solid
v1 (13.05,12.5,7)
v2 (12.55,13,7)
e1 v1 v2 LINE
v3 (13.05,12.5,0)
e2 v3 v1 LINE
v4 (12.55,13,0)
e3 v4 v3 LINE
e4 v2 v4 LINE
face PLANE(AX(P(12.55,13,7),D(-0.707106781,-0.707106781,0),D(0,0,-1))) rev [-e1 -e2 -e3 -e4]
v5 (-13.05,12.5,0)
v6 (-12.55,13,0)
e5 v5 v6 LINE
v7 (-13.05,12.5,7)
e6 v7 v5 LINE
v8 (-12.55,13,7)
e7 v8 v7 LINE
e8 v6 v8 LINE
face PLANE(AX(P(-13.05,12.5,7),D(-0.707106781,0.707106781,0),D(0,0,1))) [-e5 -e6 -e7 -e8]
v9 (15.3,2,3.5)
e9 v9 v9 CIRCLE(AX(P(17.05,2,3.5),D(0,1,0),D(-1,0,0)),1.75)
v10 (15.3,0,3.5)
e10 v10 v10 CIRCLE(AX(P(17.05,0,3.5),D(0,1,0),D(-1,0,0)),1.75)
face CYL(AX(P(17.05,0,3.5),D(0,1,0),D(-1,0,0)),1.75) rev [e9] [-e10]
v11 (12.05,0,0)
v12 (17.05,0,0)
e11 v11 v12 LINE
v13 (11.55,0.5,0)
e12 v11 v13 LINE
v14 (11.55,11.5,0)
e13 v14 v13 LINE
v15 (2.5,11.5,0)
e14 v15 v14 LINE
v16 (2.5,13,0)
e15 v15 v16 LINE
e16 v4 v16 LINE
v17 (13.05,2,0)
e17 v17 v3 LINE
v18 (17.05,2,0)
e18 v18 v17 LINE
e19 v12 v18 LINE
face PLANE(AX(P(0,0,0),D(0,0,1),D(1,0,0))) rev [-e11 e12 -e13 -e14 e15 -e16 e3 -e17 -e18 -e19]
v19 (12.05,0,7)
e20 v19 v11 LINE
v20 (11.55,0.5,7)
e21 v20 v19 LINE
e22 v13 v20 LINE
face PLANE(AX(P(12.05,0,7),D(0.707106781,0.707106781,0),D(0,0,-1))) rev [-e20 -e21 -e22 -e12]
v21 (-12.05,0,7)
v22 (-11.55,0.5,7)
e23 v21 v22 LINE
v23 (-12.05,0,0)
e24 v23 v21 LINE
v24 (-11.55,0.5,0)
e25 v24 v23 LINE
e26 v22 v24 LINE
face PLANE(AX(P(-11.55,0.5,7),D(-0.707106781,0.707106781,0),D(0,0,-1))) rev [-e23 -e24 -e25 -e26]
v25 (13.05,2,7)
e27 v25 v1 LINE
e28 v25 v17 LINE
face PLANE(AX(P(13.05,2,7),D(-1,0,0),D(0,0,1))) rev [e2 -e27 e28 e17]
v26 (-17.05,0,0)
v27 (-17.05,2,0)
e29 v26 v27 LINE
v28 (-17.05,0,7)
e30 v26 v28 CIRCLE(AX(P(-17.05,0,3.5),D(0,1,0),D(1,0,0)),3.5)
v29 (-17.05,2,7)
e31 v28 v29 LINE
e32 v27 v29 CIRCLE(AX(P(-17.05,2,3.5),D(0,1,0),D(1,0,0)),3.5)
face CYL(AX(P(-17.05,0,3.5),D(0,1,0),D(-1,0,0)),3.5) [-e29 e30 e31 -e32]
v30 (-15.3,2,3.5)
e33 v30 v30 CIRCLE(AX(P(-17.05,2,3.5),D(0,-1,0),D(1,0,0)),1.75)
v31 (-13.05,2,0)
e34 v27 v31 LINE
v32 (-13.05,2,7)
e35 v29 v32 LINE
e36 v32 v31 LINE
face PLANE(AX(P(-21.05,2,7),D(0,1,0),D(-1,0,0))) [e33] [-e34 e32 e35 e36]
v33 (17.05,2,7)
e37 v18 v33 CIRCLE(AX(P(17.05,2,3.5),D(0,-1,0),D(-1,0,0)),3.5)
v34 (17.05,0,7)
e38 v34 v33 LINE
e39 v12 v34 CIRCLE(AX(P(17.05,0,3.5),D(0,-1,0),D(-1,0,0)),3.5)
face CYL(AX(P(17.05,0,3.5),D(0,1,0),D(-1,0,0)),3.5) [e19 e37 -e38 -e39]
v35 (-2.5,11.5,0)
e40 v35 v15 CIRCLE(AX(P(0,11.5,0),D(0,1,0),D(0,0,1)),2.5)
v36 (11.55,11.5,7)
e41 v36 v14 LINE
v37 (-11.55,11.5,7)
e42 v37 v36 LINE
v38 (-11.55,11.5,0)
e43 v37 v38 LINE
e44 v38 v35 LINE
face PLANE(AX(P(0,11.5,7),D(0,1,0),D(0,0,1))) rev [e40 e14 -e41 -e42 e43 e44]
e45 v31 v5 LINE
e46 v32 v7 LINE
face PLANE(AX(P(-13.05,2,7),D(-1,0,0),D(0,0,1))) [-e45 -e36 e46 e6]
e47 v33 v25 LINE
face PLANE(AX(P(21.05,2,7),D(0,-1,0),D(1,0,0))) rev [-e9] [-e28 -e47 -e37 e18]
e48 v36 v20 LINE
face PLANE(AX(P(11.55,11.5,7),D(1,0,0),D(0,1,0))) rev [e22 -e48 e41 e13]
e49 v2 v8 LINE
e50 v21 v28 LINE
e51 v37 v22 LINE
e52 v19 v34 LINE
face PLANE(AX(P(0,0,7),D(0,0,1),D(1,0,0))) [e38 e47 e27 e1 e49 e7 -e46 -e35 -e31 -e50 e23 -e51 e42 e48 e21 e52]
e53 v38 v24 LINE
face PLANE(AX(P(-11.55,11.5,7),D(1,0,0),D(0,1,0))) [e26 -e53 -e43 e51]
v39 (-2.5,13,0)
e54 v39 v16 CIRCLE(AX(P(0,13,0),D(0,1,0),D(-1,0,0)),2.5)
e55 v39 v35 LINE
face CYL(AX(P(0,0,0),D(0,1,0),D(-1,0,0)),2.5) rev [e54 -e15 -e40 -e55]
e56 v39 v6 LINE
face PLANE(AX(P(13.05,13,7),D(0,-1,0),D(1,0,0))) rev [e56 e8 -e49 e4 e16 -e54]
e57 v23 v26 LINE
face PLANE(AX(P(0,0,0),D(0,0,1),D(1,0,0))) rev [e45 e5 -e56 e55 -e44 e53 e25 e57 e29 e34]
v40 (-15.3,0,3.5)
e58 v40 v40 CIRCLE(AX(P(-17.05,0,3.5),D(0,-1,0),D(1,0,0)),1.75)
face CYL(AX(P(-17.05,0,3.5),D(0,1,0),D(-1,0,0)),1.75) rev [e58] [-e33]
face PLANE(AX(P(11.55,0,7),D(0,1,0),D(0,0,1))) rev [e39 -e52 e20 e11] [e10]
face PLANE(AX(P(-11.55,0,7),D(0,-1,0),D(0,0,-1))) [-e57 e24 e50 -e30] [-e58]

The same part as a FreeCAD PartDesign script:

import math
import FreeCAD as App
import Part
import Sketcher
Q = App.Units.Quantity


def edges_at(feature, points):
    """Names of the edges that pass closest to the given points."""
    edges = feature.Shape.Edges
    near = lambda p: min(range(len(edges)), key=lambda i: edges[i].distToShape(Part.Vertex(*p))[0])
    return sorted({f"Edge{near(p) + 1}" for p in points})

doc = App.newDocument("Part")
body = doc.addObject("PartDesign::Body", "Body")

# Sketch on XY plane
sketch1 = body.newObject("Sketcher::SketchObject", "Sketch")
sketch1.AttachmentSupport = (doc.getObject("XY_Plane"), [""])
sketch1.MapMode = "FlatFace"
sketch1.addGeometry([
    Part.LineSegment(App.Vector(0, 11.5, 0), App.Vector(11.6, 11.5, 0)),  # 0
    Part.LineSegment(App.Vector(11.6, 11.5, 0), App.Vector(11.6, 0, 0)),  # 1
    Part.LineSegment(App.Vector(11.6, 0, 0), App.Vector(21.1, 0, 0)),  # 2
    Part.LineSegment(App.Vector(21.1, 0, 0), App.Vector(21.1, 2, 0)),  # 3
    Part.LineSegment(App.Vector(21.1, 2, 0), App.Vector(13.1, 2, 0)),  # 4
    Part.LineSegment(App.Vector(13.1, 2, 0), App.Vector(13.1, 13, 0)),  # 5
    Part.LineSegment(App.Vector(13.1, 13, 0), App.Vector(0, 13, 0)),  # 6
    Part.LineSegment(App.Vector(0, 13, 0), App.Vector(0, 11.5, 0)),  # 7
], False)
sketch1.addConstraint([
    Sketcher.Constraint("Coincident", 0, 2, 1, 1),
    Sketcher.Constraint("Coincident", 1, 2, 2, 1),
    Sketcher.Constraint("Coincident", 2, 2, 3, 1),
    Sketcher.Constraint("Coincident", 3, 2, 4, 1),
    Sketcher.Constraint("Coincident", 4, 2, 5, 1),
    Sketcher.Constraint("Coincident", 5, 2, 6, 1),
    Sketcher.Constraint("Coincident", 6, 2, 7, 1),
    Sketcher.Constraint("Coincident", 7, 2, 0, 1),
    Sketcher.Constraint("Horizontal", 0),
    Sketcher.Constraint("Vertical", 1),
    Sketcher.Constraint("Horizontal", 2),
    Sketcher.Constraint("Vertical", 3),
    Sketcher.Constraint("Horizontal", 4),
    Sketcher.Constraint("Vertical", 5),
    Sketcher.Constraint("Horizontal", 6),
    Sketcher.Constraint("Vertical", 7),
    Sketcher.Constraint("PointOnObject", 1, 2, -1),
    Sketcher.Constraint("PointOnObject", 6, 2, -2),
    Sketcher.Constraint("DistanceX", 4, 2, 4, 1, Q("8 mm")),
    Sketcher.Constraint("DistanceY", 3, 1, 3, 2, Q("2 mm")),
    Sketcher.Constraint("DistanceY", 5, 1, 5, 2, Q("11 mm")),
    Sketcher.Constraint("DistanceX", 2, 1, 2, 2, Q("9.5 mm")),
    Sketcher.Constraint("DistanceY", 1, 2, 1, 1, Q("11.5 mm")),
    Sketcher.Constraint("DistanceX", 0, 1, 0, 2, Q("11.55 mm")),
])
pad1 = body.newObject("PartDesign::Pad", "Pad")
pad1.Profile = sketch1
pad1.Length = 7

# Sketch on XZ plane
sketch2 = body.newObject("Sketcher::SketchObject", "Sketch001")
sketch2.AttachmentSupport = (doc.getObject("XZ_Plane"), [""])
sketch2.MapMode = "FlatFace"
sketch2.AttachmentOffset = App.Placement(App.Vector(0, 0, -2), App.Rotation())
sketch2.addGeometry([
    Part.Circle(App.Vector(17.1, 3.5, 0), App.Vector(0, 0, 1), 1.8),  # 0
    Part.LineSegment(App.Vector(21.1, 0, 0), App.Vector(17.1, 0, 0)),  # 1
    Part.ArcOfCircle(Part.Circle(App.Vector(17.1, 3.5, 0), App.Vector(0, 0, 1), 3.5), math.radians(-90), math.radians(90)),  # 2
    Part.LineSegment(App.Vector(17.1, 7, 0), App.Vector(21.1, 7, 0)),  # 3
    Part.LineSegment(App.Vector(21.1, 7, 0), App.Vector(21.1, 0, 0)),  # 4
], False)
sketch2.addConstraint([
    Sketcher.Constraint("Tangent", 1, 2, 2, 1),
    Sketcher.Constraint("Tangent", 2, 2, 3, 1),
    Sketcher.Constraint("Coincident", 3, 2, 4, 1),
    Sketcher.Constraint("Coincident", 4, 2, 1, 1),
    Sketcher.Constraint("Horizontal", 1),
    Sketcher.Constraint("Horizontal", 3),
    Sketcher.Constraint("Vertical", 4),
    Sketcher.Constraint("Coincident", 2, 3, 0, 3),
    Sketcher.Constraint("PointOnObject", 1, 2, -1),
    Sketcher.Constraint("Diameter", 0, Q("3.5 mm")),
    Sketcher.Constraint("Radius", 2, Q("3.5 mm")),
    Sketcher.Constraint("DistanceX", 1, 2, 1, 1, Q("4 mm")),
    Sketcher.Constraint("DistanceX", -1, 1, 0, 3, Q("17.05 mm")),
])
pocket1 = body.newObject("PartDesign::Pocket", "Pocket")
pocket1.Profile = sketch2
pocket1.Type = "ThroughAll"
pocket1.Reversed = True
doc.recompute()

chamfer = body.newObject("PartDesign::Chamfer", "Chamfer")
chamfer.Base = (pocket1, edges_at(pocket1, [(11.55, 0, 3.5), (13.05, 13, 3.5)]))
chamfer.Size = 0.5
doc.recompute()

mirrored = body.newObject("PartDesign::Mirrored", "Mirrored")
mirrored.Originals = [pad1, pocket1]
mirrored.MirrorPlane = (doc.getObject("YZ_Plane"), [""])
body.Tip = mirrored
doc.recompute()

chamfer2 = body.newObject("PartDesign::Chamfer", "Chamfer001")
chamfer2.Base = (mirrored, edges_at(mirrored, [(-11.55, 0, 3.5), (-13.05, 13, 3.5)]))
chamfer2.Size = 0.5

# Sketch on XZ plane
sketch3 = body.newObject("Sketcher::SketchObject", "Sketch002")
sketch3.AttachmentSupport = (doc.getObject("XZ_Plane"), [""])
sketch3.MapMode = "FlatFace"
sketch3.AttachmentOffset = App.Placement(App.Vector(0, 0, -13), App.Rotation())
sketch3.addGeometry([
    Part.LineSegment(App.Vector(2.5, 0, 0), App.Vector(-2.5, 0, 0)),
    Part.ArcOfCircle(Part.Circle(App.Vector(0, 0, 0), App.Vector(0, 0, 1), 2.5), math.radians(0), math.radians(180)),
], False)
sketch3.addConstraint([
    Sketcher.Constraint("Coincident", 0, 1, 1, 1),
    Sketcher.Constraint("Coincident", 1, 2, 0, 2),
    Sketcher.Constraint("Horizontal", 0),
    Sketcher.Constraint("Coincident", 1, 3, -1, 1),
    Sketcher.Constraint("PointOnObject", 0, 1, -1),
    Sketcher.Constraint("Radius", 1, Q("2.5 mm")),
])
pocket2 = body.newObject("PartDesign::Pocket", "Pocket001")
pocket2.Profile = sketch3
pocket2.Type = "ThroughAll"
pocket2.Reversed = True

doc.recompute()
